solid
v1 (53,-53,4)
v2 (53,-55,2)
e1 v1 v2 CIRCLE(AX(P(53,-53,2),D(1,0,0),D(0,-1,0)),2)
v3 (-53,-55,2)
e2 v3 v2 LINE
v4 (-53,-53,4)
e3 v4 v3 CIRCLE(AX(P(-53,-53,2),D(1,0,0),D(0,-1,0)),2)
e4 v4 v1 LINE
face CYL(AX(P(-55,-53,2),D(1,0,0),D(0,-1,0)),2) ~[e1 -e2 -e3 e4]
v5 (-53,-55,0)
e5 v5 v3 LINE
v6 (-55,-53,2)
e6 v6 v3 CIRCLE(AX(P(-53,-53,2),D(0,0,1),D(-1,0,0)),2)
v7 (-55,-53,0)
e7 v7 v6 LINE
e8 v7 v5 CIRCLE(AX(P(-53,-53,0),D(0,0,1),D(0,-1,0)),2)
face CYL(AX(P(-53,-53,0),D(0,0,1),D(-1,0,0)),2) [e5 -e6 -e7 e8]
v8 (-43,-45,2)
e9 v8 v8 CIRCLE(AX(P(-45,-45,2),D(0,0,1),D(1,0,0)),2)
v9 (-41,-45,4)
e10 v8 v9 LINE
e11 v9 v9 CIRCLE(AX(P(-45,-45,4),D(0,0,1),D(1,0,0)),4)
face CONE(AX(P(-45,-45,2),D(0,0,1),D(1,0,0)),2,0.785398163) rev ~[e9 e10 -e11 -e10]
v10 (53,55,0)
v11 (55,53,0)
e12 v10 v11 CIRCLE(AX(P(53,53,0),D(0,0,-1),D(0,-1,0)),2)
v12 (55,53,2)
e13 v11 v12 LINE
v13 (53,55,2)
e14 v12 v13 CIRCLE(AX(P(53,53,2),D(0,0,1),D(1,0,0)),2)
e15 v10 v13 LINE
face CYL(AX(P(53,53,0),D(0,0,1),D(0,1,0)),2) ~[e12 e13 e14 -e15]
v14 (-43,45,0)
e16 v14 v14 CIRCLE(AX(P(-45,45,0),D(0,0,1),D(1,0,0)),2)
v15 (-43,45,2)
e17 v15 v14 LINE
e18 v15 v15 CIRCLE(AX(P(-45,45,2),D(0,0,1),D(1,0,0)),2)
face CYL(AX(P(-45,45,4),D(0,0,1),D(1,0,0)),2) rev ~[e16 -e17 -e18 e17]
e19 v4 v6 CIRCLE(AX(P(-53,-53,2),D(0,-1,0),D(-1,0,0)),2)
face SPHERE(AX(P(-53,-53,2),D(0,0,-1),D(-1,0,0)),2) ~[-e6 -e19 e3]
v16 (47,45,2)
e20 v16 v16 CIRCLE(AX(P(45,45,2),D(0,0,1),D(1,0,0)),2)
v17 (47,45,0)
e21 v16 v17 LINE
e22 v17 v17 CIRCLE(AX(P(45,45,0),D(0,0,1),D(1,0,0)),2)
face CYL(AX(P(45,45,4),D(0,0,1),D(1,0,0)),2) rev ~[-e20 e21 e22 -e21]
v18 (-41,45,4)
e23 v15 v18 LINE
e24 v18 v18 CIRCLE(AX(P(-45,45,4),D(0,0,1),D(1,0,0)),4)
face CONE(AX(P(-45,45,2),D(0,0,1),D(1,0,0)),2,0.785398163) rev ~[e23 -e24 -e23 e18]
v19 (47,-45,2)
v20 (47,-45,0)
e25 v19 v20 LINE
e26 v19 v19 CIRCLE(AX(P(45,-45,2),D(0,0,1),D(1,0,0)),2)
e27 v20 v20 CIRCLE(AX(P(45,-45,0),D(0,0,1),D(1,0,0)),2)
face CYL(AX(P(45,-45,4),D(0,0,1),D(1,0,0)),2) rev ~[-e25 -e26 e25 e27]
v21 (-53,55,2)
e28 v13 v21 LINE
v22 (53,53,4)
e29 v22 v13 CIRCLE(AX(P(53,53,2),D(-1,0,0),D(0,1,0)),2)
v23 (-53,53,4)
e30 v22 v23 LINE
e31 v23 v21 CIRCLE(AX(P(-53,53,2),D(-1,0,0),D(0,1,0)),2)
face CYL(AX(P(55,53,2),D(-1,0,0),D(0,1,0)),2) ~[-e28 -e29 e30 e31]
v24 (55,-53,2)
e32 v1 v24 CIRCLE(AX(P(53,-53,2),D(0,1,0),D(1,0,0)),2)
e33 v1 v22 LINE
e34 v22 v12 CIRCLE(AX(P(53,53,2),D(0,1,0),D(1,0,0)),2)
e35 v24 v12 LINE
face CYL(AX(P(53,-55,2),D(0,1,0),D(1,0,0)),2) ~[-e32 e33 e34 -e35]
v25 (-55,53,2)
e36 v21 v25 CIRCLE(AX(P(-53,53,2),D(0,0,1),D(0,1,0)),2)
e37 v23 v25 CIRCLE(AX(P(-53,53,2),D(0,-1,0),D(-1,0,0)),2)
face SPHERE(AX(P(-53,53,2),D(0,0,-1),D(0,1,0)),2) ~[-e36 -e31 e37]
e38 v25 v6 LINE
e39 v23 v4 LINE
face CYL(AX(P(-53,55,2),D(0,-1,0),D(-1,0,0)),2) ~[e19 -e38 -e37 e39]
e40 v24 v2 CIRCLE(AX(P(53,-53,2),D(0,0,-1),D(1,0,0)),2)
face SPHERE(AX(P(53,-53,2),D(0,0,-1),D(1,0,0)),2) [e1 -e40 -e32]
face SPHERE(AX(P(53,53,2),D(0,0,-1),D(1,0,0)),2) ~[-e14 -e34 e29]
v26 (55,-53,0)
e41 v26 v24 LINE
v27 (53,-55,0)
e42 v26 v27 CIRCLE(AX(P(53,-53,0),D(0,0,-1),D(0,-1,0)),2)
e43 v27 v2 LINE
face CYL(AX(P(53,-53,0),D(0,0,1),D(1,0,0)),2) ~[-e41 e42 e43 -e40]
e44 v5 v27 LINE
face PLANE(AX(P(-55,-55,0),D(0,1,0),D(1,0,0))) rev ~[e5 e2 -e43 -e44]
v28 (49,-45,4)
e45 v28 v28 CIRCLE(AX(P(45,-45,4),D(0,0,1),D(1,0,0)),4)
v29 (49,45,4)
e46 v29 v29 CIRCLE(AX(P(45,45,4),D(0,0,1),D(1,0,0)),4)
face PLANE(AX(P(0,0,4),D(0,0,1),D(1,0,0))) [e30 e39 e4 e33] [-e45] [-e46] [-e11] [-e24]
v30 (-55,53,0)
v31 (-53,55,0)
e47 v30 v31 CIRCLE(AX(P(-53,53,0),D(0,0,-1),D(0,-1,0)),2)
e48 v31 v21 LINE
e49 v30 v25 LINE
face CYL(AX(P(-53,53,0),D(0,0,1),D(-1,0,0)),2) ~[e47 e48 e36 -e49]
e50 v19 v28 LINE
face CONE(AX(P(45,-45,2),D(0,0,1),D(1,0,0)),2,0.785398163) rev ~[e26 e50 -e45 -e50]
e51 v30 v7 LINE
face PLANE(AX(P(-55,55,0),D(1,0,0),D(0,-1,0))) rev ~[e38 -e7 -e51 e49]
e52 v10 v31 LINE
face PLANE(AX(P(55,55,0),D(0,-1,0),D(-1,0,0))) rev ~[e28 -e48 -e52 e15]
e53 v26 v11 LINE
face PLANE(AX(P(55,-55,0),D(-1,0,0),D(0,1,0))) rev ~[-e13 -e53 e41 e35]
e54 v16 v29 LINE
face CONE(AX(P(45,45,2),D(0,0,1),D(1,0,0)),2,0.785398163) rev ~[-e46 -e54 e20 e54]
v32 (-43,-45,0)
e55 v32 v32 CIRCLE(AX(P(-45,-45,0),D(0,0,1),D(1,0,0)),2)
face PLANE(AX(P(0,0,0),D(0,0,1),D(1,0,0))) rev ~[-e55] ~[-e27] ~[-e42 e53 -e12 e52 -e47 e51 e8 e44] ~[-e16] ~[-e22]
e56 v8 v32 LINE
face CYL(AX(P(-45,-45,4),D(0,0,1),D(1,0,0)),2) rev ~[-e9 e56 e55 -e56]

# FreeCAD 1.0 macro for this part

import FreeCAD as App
import Part
import Sketcher


def edges_at(feature, points):
    """Names of the edges that pass closest to the given points."""
    edges = feature.Shape.Edges
    near = lambda p: min(range(len(edges)), key=lambda i: edges[i].distToShape(Part.Vertex(*p))[0])
    return sorted({f"Edge{near(p) + 1}" for p in points})

doc = App.newDocument("Part")
body = doc.addObject("PartDesign::Body", "Body")

sketch1 = body.newObject("Sketcher::SketchObject", "Sketch")
sketch1.AttachmentSupport = (doc.getObject("XY_Plane"), [""])
sketch1.MapMode = "FlatFace"
sketch1.addGeometry([
    Part.LineSegment(App.Vector(-55, 55, 0), App.Vector(-55, -55, 0)),
    Part.LineSegment(App.Vector(-55, -55, 0), App.Vector(55, -55, 0)),
    Part.LineSegment(App.Vector(55, -55, 0), App.Vector(55, 55, 0)),
    Part.LineSegment(App.Vector(55, 55, 0), App.Vector(-55, 55, 0)),
], False)
sketch1.addConstraint([
    Sketcher.Constraint("Coincident", 0, 2, 1, 1),
    Sketcher.Constraint("Coincident", 1, 2, 2, 1),
    Sketcher.Constraint("Coincident", 2, 2, 3, 1),
    Sketcher.Constraint("Coincident", 3, 2, 0, 1),
    Sketcher.Constraint("Vertical", 0),
    Sketcher.Constraint("Horizontal", 1),
    Sketcher.Constraint("Vertical", 2),
    Sketcher.Constraint("Horizontal", 3),
    Sketcher.Constraint("Symmetric", 0, 2, 2, 2, -1, 1),
    Sketcher.Constraint("Equal", 3, 0),
    Sketcher.Constraint("DistanceX", 1, 1, 1, 2, 110.0),
])
pad1 = body.newObject("PartDesign::Pad", "Pad")
pad1.Profile = sketch1
pad1.Length = 4
doc.recompute()

fillet = body.newObject("PartDesign::Fillet", "Fillet")
fillet.Base = (pad1, edges_at(pad1, [
    (-55, -55, 2),
    (-55, 55, 2),
    (55, 55, 2),
    (55, -55, 2),
    (55, 0, 4),
    (0, 55, 4),
    (-55, 0, 4),
    (0, -55, 4),
]))
fillet.Radius = 2

sketch2 = body.newObject("Sketcher::SketchObject", "Sketch001")
sketch2.AttachmentSupport = (doc.getObject("XY_Plane"), [""])
sketch2.MapMode = "FlatFace"
sketch2.AttachmentOffset = App.Placement(App.Vector(0, 0, 4), App.Rotation())
sketch2.addGeometry([
    Part.Circle(App.Vector(-45, 45, 0), App.Vector(0, 0, 1), 2),
    Part.Circle(App.Vector(45, 45, 0), App.Vector(0, 0, 1), 2),
    Part.Circle(App.Vector(-45, -45, 0), App.Vector(0, 0, 1), 2),
    Part.Circle(App.Vector(45, -45, 0), App.Vector(0, 0, 1), 2),
], False)
sketch2.addConstraint([
    Sketcher.Constraint("Equal", 0, 1),
    Sketcher.Constraint("Equal", 1, 2),
    Sketcher.Constraint("Equal", 2, 3),
    Sketcher.Constraint("Symmetric", 1, 3, 2, 3, -1, 1),
    Sketcher.Constraint("Symmetric", 0, 3, 3, 3, -1, 1),
    Sketcher.Constraint("Symmetric", 0, 3, 1, 3, -2),
    Sketcher.Constraint("Diameter", 0, 4.0),
    Sketcher.Constraint("DistanceX", 0, 3, -1, 1, 45.0),
    Sketcher.Constraint("DistanceY", -1, 1, 0, 3, 45.0),
])
pocket1 = body.newObject("PartDesign::Pocket", "Pocket")
pocket1.Profile = sketch2
pocket1.Length = 4
doc.recompute()

chamfer = body.newObject("PartDesign::Chamfer", "Chamfer")
chamfer.Base = (pocket1, edges_at(pocket1, [
    (-47, 45, 4),
    (43, 45, 4),
    (43, -45, 4),
    (-47, -45, 4),
]))
chamfer.Size = 2

doc.recompute()
